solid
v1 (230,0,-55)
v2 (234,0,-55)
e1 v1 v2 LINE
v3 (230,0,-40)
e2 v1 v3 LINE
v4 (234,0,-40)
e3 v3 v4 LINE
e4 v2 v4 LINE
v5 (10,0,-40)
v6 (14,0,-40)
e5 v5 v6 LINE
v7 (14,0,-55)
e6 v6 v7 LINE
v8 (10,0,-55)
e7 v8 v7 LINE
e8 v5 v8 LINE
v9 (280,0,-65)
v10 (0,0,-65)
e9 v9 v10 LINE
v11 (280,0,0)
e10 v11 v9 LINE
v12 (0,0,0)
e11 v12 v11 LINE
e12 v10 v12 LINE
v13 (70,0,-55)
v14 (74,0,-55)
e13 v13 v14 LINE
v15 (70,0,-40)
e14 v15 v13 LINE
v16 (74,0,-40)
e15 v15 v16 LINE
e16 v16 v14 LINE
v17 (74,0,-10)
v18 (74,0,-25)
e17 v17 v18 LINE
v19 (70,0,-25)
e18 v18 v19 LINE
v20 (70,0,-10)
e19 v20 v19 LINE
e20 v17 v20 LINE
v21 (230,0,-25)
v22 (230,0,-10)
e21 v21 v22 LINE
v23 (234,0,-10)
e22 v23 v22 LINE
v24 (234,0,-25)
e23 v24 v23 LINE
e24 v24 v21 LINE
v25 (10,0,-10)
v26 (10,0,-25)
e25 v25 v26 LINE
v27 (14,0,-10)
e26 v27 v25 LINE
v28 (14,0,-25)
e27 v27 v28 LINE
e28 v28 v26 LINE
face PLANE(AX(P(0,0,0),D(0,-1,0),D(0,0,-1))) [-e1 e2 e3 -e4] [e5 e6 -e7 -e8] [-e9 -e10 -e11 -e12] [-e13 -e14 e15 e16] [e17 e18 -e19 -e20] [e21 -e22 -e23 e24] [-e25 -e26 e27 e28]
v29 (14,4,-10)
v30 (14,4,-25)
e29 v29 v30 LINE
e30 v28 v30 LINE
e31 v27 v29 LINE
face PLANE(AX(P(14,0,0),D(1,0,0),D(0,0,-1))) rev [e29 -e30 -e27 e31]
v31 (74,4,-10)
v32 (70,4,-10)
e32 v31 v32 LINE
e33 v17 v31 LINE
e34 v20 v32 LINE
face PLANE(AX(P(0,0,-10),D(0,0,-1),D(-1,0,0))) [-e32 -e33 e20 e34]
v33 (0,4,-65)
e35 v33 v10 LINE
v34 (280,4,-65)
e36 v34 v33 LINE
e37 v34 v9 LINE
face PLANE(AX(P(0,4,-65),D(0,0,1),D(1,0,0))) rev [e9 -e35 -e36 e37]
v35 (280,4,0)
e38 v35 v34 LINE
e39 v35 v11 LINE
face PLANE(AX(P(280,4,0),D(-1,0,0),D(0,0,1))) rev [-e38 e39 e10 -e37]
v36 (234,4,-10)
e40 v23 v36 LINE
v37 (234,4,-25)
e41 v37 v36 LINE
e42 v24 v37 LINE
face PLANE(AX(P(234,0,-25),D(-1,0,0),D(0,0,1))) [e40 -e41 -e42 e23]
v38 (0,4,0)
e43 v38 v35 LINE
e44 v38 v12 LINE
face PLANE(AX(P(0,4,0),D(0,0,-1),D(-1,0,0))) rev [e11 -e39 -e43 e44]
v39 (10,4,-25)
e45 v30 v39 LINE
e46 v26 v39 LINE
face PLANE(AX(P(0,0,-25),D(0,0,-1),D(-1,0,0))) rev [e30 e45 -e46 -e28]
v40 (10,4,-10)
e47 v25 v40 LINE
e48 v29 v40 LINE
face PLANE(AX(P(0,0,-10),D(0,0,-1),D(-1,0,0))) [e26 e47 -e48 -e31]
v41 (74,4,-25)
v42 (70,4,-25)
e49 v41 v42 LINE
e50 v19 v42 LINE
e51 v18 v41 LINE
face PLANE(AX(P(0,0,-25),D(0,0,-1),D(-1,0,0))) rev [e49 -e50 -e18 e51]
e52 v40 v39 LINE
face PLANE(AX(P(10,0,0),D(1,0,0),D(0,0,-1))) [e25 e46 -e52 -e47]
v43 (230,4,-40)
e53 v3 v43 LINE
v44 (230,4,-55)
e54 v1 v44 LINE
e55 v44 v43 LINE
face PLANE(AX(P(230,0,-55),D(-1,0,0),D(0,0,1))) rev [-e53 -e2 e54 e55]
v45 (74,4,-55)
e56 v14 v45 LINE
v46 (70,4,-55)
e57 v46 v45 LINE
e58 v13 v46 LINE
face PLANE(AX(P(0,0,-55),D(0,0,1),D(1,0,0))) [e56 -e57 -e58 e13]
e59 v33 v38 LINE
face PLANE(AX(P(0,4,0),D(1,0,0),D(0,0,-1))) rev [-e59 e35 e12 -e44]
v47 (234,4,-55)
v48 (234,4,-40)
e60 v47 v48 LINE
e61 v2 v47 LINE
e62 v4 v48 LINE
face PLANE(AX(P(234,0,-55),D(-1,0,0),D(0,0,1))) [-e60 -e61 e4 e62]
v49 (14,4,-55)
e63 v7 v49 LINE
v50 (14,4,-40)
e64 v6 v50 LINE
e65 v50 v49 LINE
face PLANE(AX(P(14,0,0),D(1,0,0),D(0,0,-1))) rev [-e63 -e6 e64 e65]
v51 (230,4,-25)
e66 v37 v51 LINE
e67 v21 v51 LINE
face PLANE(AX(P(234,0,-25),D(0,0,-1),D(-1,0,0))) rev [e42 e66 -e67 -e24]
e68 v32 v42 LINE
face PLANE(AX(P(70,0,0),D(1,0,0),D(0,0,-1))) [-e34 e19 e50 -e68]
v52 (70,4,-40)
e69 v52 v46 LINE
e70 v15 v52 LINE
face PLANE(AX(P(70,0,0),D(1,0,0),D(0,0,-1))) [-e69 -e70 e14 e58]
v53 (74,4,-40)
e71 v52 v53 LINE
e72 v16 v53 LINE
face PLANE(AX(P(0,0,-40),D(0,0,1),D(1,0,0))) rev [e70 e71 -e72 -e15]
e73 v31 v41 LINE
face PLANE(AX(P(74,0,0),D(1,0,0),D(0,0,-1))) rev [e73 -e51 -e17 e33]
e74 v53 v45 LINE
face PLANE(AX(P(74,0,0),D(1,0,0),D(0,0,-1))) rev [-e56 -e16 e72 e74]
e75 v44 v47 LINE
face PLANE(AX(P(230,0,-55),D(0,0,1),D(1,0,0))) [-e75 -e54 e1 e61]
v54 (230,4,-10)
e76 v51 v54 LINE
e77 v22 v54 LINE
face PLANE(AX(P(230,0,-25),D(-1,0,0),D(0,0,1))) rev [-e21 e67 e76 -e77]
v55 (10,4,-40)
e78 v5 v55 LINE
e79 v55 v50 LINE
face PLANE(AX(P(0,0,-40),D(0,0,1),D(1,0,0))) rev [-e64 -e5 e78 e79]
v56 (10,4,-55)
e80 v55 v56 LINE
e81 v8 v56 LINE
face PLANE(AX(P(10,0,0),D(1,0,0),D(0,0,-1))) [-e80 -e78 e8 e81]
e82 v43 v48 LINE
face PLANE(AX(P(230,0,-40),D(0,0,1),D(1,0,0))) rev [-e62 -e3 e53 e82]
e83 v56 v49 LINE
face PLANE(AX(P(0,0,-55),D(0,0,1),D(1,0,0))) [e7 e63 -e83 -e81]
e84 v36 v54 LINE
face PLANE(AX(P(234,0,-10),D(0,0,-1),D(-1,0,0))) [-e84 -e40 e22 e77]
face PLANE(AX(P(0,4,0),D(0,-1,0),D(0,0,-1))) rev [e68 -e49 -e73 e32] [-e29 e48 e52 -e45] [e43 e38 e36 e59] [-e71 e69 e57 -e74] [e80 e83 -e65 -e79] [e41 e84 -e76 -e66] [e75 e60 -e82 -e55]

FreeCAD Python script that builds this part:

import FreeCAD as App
import Part
import Sketcher
from FreeCAD import Vector

doc = App.newDocument("Part")
body = doc.addObject("PartDesign::Body", "Body")

# Sketch on XZ plane
sketch1 = body.newObject("Sketcher::SketchObject", "Sketch")
sketch1.AttachmentSupport = (doc.getObject("XZ_Plane"), [""])
sketch1.MapMode = "FlatFace"
sketch1.addGeometry([
    Part.LineSegment(Vector(0, -65, 0), Vector(0, 0, 0)),
    Part.LineSegment(Vector(0, 0, 0), Vector(280, 0, 0)),
    Part.LineSegment(Vector(280, 0, 0), Vector(280, -65, 0)),
    Part.LineSegment(Vector(280, -65, 0), Vector(0, -65, 0)),
], False)
sketch1.addConstraint([
    Sketcher.Constraint("Coincident", 0, 2, 1, 1),
    Sketcher.Constraint("Coincident", 1, 2, 2, 1),
    Sketcher.Constraint("Coincident", 2, 2, 3, 1),
    Sketcher.Constraint("Coincident", 3, 2, 0, 1),
    Sketcher.Constraint("Vertical", 0),
    Sketcher.Constraint("Horizontal", 1),
    Sketcher.Constraint("Vertical", 2),
    Sketcher.Constraint("Horizontal", 3),
    Sketcher.Constraint("Coincident", 0, 2, -1, 1),
    Sketcher.Constraint("DistanceX", 1, 1, 1, 2, 280.0),
    Sketcher.Constraint("DistanceY", 0, 1, 0, 2, 65.0),
])
pad1 = body.newObject("PartDesign::Pad", "Pad")
pad1.Profile = sketch1
pad1.Length = 4
pad1.Reversed = True

# Sketch on XZ plane
sketch2 = body.newObject("Sketcher::SketchObject", "Sketch001")
sketch2.AttachmentSupport = (doc.getObject("XZ_Plane"), [""])
sketch2.MapMode = "FlatFace"
sketch2.AttachmentOffset = App.Placement(Vector(0, 0, -4), App.Rotation())
sketch2.addGeometry([
    Part.LineSegment(Vector(10, -55, 0), Vector(10, -40, 0)),  # 0
    Part.LineSegment(Vector(10, -40, 0), Vector(14, -40, 0)),  # 1
    Part.LineSegment(Vector(14, -40, 0), Vector(14, -55, 0)),  # 2
    Part.LineSegment(Vector(14, -55, 0), Vector(10, -55, 0)),  # 3
    Part.LineSegment(Vector(10, -25, 0), Vector(10, -10, 0)),  # 4
    Part.LineSegment(Vector(10, -10, 0), Vector(14, -10, 0)),  # 5
    Part.LineSegment(Vector(14, -10, 0), Vector(14, -25, 0)),  # 6
    Part.LineSegment(Vector(14, -25, 0), Vector(10, -25, 0)),  # 7
    Part.LineSegment(Vector(70, -25, 0), Vector(70, -10, 0)),  # 8
    Part.LineSegment(Vector(70, -10, 0), Vector(74, -10, 0)),  # 9
    Part.LineSegment(Vector(74, -10, 0), Vector(74, -25, 0)),  # 10
    Part.LineSegment(Vector(74, -25, 0), Vector(70, -25, 0)),  # 11
    Part.LineSegment(Vector(70, -55, 0), Vector(70, -40, 0)),  # 12
    Part.LineSegment(Vector(70, -40, 0), Vector(74, -40, 0)),  # 13
    Part.LineSegment(Vector(74, -40, 0), Vector(74, -55, 0)),  # 14
    Part.LineSegment(Vector(74, -55, 0), Vector(70, -55, 0)),  # 15
    Part.LineSegment(Vector(230, -55, 0), Vector(230, -40, 0)),  # 16
    Part.LineSegment(Vector(230, -40, 0), Vector(234, -40, 0)),  # 17
    Part.LineSegment(Vector(234, -40, 0), Vector(234, -55, 0)),  # 18
    Part.LineSegment(Vector(234, -55, 0), Vector(230, -55, 0)),  # 19
    Part.LineSegment(Vector(230, -25, 0), Vector(230, -10, 0)),  # 20
    Part.LineSegment(Vector(230, -10, 0), Vector(234, -10, 0)),  # 21
    Part.LineSegment(Vector(234, -10, 0), Vector(234, -25, 0)),  # 22
    Part.LineSegment(Vector(234, -25, 0), Vector(230, -25, 0)),  # 23
], False)
sketch2.addConstraint([
    Sketcher.Constraint("Coincident", 0, 2, 1, 1),
    Sketcher.Constraint("Coincident", 1, 2, 2, 1),
    Sketcher.Constraint("Coincident", 2, 2, 3, 1),
    Sketcher.Constraint("Coincident", 3, 2, 0, 1),
    Sketcher.Constraint("Coincident", 4, 2, 5, 1),
    Sketcher.Constraint("Coincident", 5, 2, 6, 1),
    Sketcher.Constraint("Coincident", 6, 2, 7, 1),
    Sketcher.Constraint("Coincident", 7, 2, 4, 1),
    Sketcher.Constraint("Coincident", 8, 2, 9, 1),
    Sketcher.Constraint("Coincident", 9, 2, 10, 1),
    Sketcher.Constraint("Coincident", 10, 2, 11, 1),
    Sketcher.Constraint("Coincident", 11, 2, 8, 1),
    Sketcher.Constraint("Coincident", 12, 2, 13, 1),
    Sketcher.Constraint("Coincident", 13, 2, 14, 1),
    Sketcher.Constraint("Coincident", 14, 2, 15, 1),
    Sketcher.Constraint("Coincident", 15, 2, 12, 1),
    Sketcher.Constraint("Coincident", 16, 2, 17, 1),
    Sketcher.Constraint("Coincident", 17, 2, 18, 1),
    Sketcher.Constraint("Coincident", 18, 2, 19, 1),
    Sketcher.Constraint("Coincident", 19, 2, 16, 1),
    Sketcher.Constraint("Coincident", 20, 2, 21, 1),
    Sketcher.Constraint("Coincident", 21, 2, 22, 1),
    Sketcher.Constraint("Coincident", 22, 2, 23, 1),
    Sketcher.Constraint("Coincident", 23, 2, 20, 1),
    Sketcher.Constraint("Vertical", 0),
    Sketcher.Constraint("Horizontal", 1),
    Sketcher.Constraint("Vertical", 2),
    Sketcher.Constraint("Horizontal", 3),
    Sketcher.Constraint("Vertical", 4),
    Sketcher.Constraint("Horizontal", 5),
    Sketcher.Constraint("Vertical", 6),
    Sketcher.Constraint("Horizontal", 7),
    Sketcher.Constraint("Vertical", 8),
    Sketcher.Constraint("Horizontal", 9),
    Sketcher.Constraint("Vertical", 10),
    Sketcher.Constraint("Horizontal", 11),
    Sketcher.Constraint("Vertical", 12),
    Sketcher.Constraint("Horizontal", 13),
    Sketcher.Constraint("Vertical", 14),
    Sketcher.Constraint("Horizontal", 15),
    Sketcher.Constraint("Vertical", 16),
    Sketcher.Constraint("Horizontal", 17),
    Sketcher.Constraint("Vertical", 18),
    Sketcher.Constraint("Horizontal", 19),
    Sketcher.Constraint("Vertical", 20),
    Sketcher.Constraint("Horizontal", 21),
    Sketcher.Constraint("Vertical", 22),
    Sketcher.Constraint("Horizontal", 23),
    Sketcher.Constraint("Horizontal", 5, 2, 8, 2),
    Sketcher.Constraint("Horizontal", 7, 2, 10, 2),
    Sketcher.Constraint("Horizontal", 1, 2, 12, 2),
    Sketcher.Constraint("Horizontal", 3, 2, 14, 2),
    Sketcher.Constraint("Horizontal", 13, 2, 16, 2),
    Sketcher.Constraint("Horizontal", 15, 2, 18, 2),
    Sketcher.Constraint("Horizontal", 9, 2, 20, 2),
    Sketcher.Constraint("Horizontal", 11, 2, 22, 2),
    Sketcher.Constraint("Vertical", 3, 2, 4, 2),
    Sketcher.Constraint("Vertical", 2, 2, 5, 2),
    Sketcher.Constraint("Vertical", 11, 2, 12, 2),
    Sketcher.Constraint("Vertical", 10, 2, 13, 2),
    Sketcher.Constraint("Vertical", 19, 2, 20, 2),
    Sketcher.Constraint("Vertical", 18, 2, 21, 2),
    Sketcher.Constraint("Equal", 7, 9),
    Sketcher.Constraint("Equal", 15, 17),
    Sketcher.Constraint("Equal", 2, 4),
    Sketcher.Constraint("DistanceX", 1, 1, 1, 2, 4.0),
    Sketcher.Constraint("DistanceY", 0, 1, 0, 2, 15.0),
    Sketcher.Constraint("DistanceX", -1, 1, 0, 2, 10.0),
    Sketcher.Constraint("DistanceY", 0, 2, -1, 1, 40.0),
    Sketcher.Constraint("DistanceY", 4, 2, -1, 1, 10.0),
    Sketcher.Constraint("DistanceX", -1, 1, 8, 2, 70.0),
    Sketcher.Constraint("DistanceX", -1, 1, 16, 2, 230.0),
])
pocket1 = body.newObject("PartDesign::Pocket", "Pocket")
pocket1.Profile = sketch2
pocket1.Length = 4
pocket1.Reversed = True

doc.recompute()
